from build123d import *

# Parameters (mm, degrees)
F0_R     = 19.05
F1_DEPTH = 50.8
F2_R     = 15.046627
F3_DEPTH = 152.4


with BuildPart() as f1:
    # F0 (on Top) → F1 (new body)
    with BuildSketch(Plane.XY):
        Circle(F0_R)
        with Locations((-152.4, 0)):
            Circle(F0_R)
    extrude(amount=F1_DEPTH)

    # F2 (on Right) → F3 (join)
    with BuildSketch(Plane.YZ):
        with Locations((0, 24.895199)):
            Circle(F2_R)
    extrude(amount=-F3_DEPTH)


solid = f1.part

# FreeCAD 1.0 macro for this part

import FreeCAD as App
import Part
import Sketcher
Q = App.Units.Quantity

doc = App.newDocument("Part")
body = doc.addObject("PartDesign::Body", "Body")
body.AllowCompound = True

sketch1 = body.newObject("Sketcher::SketchObject", "Sketch")
sketch1.AttachmentSupport = (doc.getObject("XY_Plane"), [""])
sketch1.MapMode = "FlatFace"
sketch1.addGeometry([
    Part.Circle(App.Vector(0, 0, 0), App.Vector(0, 0, 1), 19),
    Part.Circle(App.Vector(-152, 0, 0), App.Vector(0, 0, 1), 19),
], False)
sketch1.addConstraint([
    Sketcher.Constraint("Coincident", 0, 3, -1, 1),
    Sketcher.Constraint("Equal", 0, 1),
    Sketcher.Constraint("PointOnObject", 1, 3, -1),
    Sketcher.Constraint("Diameter", 0, Q("1.5 in")),
    Sketcher.Constraint("DistanceX", 1, 3, -1, 1, Q("6 in")),
])
pad1 = body.newObject("PartDesign::Pad", "Pad")
pad1.Profile = sketch1
pad1.Length = Q("2 in")

sketch2 = body.newObject("Sketcher::SketchObject", "Sketch001")
sketch2.AttachmentSupport = (doc.getObject("YZ_Plane"), [""])
sketch2.MapMode = "FlatFace"
sketch2.addGeometry(Part.Circle(App.Vector(0, 25, 0), App.Vector(0, 0, 1), 15), False)
sketch2.addConstraint([
    Sketcher.Constraint("PointOnObject", 0, 3, -2),
    Sketcher.Constraint("Diameter", 0, 30.093254),
    Sketcher.Constraint("DistanceY", -1, 1, 0, 3, 24.895199),
])
pad2 = body.newObject("PartDesign::Pad", "Pad001")
pad2.Profile = sketch2
pad2.Length = Q("6 in")
pad2.Reversed = True

doc.recompute()
